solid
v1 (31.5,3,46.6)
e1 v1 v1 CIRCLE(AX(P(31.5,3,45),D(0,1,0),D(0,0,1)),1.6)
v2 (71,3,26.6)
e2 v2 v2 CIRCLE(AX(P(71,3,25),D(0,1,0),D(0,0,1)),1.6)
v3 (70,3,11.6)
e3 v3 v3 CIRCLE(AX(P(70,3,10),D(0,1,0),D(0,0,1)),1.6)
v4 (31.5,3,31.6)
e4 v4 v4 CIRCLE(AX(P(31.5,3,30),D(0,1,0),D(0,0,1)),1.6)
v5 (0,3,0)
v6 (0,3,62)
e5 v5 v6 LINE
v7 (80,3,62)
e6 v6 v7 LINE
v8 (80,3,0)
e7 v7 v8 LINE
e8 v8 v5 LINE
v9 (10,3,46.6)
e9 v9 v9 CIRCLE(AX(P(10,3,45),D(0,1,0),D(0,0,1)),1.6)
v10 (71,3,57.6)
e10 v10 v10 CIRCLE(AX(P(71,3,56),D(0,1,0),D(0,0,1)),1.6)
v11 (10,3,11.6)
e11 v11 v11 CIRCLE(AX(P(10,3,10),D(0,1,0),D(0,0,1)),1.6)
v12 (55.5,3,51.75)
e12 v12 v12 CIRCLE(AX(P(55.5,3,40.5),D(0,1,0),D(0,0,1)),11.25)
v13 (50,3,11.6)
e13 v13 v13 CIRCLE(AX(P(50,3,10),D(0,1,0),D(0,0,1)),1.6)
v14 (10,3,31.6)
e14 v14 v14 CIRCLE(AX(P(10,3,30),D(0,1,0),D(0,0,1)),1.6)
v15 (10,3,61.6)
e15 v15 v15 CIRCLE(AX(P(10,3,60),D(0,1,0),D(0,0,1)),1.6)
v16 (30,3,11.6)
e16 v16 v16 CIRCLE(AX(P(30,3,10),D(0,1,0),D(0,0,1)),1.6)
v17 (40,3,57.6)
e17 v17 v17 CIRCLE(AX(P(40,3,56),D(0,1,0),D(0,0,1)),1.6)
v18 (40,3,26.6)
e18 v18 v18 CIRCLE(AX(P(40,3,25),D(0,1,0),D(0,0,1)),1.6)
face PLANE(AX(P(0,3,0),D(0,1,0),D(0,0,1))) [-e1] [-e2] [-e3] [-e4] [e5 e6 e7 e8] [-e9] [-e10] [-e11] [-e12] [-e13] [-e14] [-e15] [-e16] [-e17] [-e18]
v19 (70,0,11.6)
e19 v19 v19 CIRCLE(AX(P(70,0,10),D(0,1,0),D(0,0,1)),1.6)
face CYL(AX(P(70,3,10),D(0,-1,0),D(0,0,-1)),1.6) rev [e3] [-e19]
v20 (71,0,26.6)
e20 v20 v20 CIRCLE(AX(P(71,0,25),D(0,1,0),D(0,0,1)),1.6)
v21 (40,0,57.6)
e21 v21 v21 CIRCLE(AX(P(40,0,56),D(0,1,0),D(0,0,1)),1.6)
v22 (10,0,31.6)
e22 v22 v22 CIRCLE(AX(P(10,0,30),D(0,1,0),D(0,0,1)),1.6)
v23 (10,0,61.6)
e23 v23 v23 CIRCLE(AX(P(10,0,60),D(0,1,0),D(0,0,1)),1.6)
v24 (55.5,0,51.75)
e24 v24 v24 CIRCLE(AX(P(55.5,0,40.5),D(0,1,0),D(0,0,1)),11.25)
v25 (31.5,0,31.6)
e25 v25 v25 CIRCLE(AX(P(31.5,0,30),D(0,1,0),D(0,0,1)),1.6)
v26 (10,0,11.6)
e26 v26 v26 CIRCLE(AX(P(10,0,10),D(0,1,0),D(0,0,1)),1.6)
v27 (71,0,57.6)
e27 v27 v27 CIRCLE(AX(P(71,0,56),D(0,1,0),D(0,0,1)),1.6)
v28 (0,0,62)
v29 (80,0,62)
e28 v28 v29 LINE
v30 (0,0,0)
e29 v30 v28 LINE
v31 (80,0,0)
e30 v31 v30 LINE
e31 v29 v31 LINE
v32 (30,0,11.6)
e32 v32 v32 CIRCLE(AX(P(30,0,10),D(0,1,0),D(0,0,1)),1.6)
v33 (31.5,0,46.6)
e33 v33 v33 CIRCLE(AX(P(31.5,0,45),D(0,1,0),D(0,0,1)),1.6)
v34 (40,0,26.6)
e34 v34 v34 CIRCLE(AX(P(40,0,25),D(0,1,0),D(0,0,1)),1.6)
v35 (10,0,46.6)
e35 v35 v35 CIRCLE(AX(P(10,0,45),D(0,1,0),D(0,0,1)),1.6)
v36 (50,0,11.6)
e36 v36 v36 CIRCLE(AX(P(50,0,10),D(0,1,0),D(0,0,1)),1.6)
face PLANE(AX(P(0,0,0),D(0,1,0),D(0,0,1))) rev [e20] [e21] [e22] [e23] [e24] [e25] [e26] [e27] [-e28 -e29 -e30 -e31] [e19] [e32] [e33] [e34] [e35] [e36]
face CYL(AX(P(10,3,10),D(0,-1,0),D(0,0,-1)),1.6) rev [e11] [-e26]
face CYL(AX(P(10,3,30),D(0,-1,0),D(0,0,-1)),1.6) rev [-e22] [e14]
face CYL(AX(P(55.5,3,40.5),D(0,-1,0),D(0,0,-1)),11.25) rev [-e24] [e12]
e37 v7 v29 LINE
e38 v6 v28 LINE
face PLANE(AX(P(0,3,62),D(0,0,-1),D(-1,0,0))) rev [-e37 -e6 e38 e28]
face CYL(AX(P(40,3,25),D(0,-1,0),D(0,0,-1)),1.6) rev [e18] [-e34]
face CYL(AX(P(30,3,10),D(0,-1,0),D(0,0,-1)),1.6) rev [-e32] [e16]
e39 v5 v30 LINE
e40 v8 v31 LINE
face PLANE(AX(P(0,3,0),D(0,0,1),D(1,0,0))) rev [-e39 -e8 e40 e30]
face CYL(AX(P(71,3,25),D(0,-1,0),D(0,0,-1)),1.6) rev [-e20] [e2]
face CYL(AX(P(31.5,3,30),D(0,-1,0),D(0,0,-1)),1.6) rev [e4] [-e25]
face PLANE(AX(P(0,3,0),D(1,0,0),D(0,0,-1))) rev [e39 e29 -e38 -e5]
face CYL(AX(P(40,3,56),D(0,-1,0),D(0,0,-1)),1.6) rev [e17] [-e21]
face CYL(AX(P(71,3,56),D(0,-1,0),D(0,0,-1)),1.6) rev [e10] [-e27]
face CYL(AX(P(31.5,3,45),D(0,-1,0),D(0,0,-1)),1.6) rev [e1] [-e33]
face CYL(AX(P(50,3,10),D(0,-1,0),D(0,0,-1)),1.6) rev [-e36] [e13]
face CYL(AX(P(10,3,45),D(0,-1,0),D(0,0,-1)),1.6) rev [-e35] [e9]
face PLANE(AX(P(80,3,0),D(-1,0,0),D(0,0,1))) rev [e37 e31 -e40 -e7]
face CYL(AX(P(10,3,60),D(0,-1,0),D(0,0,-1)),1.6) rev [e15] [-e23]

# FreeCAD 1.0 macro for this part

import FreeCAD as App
import Part
import Sketcher
from FreeCAD import Vector


def add_polygon(sketch, points):
    """Adds a closed chain of lines whose ends are joined by coincident constraints."""
    first, n = sketch.GeometryCount, len(points)
    for a, b in zip(points, points[1:] + points[:1]):
        sketch.addGeometry(Part.LineSegment(App.Vector(*a, 0), App.Vector(*b, 0)), False)
    for i in range(n):
        sketch.addConstraint(Sketcher.Constraint("Coincident", first + i, 2, first + (i + 1) % n, 1))

doc = App.newDocument("Part")
body = doc.addObject("PartDesign::Body", "Body")

# Sketch on XZ plane
sketch1 = doc.addObject("Sketcher::SketchObject", "Sketch")
body.addObject(sketch1)
sketch1.AttachmentSupport = (doc.XZ_Plane, [""])
sketch1.MapMode = "FlatFace"
add_polygon(sketch1, [(0, 0), (0, 62), (80, 62), (80, 0)])  # lines 0-3
sketch1.addGeometry(Part.Circle(Vector(10, 60, 0), Vector(0, 0, 1), 1.6), False)  # 4
sketch1.addGeometry(Part.Circle(Vector(40, 56, 0), Vector(0, 0, 1), 1.6), False)  # 5
sketch1.addGeometry(Part.Circle(Vector(10, 45, 0), Vector(0, 0, 1), 1.6), False)  # 6
sketch1.addGeometry(Part.Circle(Vector(31.5, 45, 0), Vector(0, 0, 1), 1.6), False)  # 7
sketch1.addGeometry(Part.Circle(Vector(71, 56, 0), Vector(0, 0, 1), 1.6), False)  # 8
sketch1.addGeometry(Part.Circle(Vector(55.5, 40.5, 0), Vector(0, 0, 1), 11.2), False)  # 9
sketch1.addGeometry(Part.Circle(Vector(10, 30, 0), Vector(0, 0, 1), 1.6), False)  # 10
sketch1.addGeometry(Part.Circle(Vector(31.5, 30, 0), Vector(0, 0, 1), 1.6), False)  # 11
sketch1.addGeometry(Part.Circle(Vector(40, 25, 0), Vector(0, 0, 1), 1.6), False)  # 12
sketch1.addGeometry(Part.Circle(Vector(10, 10, 0), Vector(0, 0, 1), 1.6), False)  # 13
sketch1.addGeometry(Part.Circle(Vector(30, 10, 0), Vector(0, 0, 1), 1.6), False)  # 14
sketch1.addGeometry(Part.Circle(Vector(71, 25, 0), Vector(0, 0, 1), 1.6), False)  # 15
sketch1.addGeometry(Part.Circle(Vector(50, 10, 0), Vector(0, 0, 1), 1.6), False)  # 16
sketch1.addGeometry(Part.Circle(Vector(70, 10, 0), Vector(0, 0, 1), 1.6), False)  # 17
sketch1.addConstraint([
    Sketcher.Constraint("Vertical", 0),
    Sketcher.Constraint("Horizontal", 1),
    Sketcher.Constraint("Vertical", 2),
    Sketcher.Constraint("Horizontal", 3),
    Sketcher.Constraint("Coincident", 3, 2, -1, 1),
    Sketcher.Constraint("Equal", 4, 5),
    Sketcher.Constraint("Equal", 5, 6),
    Sketcher.Constraint("Equal", 6, 7),
    Sketcher.Constraint("Equal", 7, 8),
    Sketcher.Constraint("Equal", 8, 10),
    Sketcher.Constraint("Equal", 10, 11),
    Sketcher.Constraint("Equal", 11, 12),
    Sketcher.Constraint("Equal", 12, 13),
    Sketcher.Constraint("Equal", 13, 14),
    Sketcher.Constraint("Equal", 14, 15),
    Sketcher.Constraint("Equal", 15, 16),
    Sketcher.Constraint("Equal", 16, 17),
    Sketcher.Constraint("Horizontal", 6, 3, 7, 3),
    Sketcher.Constraint("Horizontal", 5, 3, 8, 3),
    Sketcher.Constraint("Horizontal", 10, 3, 11, 3),
    Sketcher.Constraint("Horizontal", 13, 3, 14, 3),
    Sketcher.Constraint("Horizontal", 12, 3, 15, 3),
    Sketcher.Constraint("Horizontal", 14, 3, 16, 3),
    Sketcher.Constraint("Horizontal", 16, 3, 17, 3),
    Sketcher.Constraint("Vertical", 4, 3, 6, 3),
    Sketcher.Constraint("Vertical", 6, 3, 10, 3),
    Sketcher.Constraint("Vertical", 7, 3, 11, 3),
    Sketcher.Constraint("Vertical", 5, 3, 12, 3),
    Sketcher.Constraint("Vertical", 10, 3, 13, 3),
    Sketcher.Constraint("Vertical", 8, 3, 15, 3),
    Sketcher.Constraint("Diameter", 4, 3.2),
    Sketcher.Constraint("Diameter", 9, 22.5),
    Sketcher.Constraint("DistanceX", 1, 1, 1, 2, 80.0),
    Sketcher.Constraint("DistanceY", 0, 1, 0, 2, 62.0),
    Sketcher.Constraint("DistanceX", -1, 1, 4, 3, 10.0),
    Sketcher.Constraint("DistanceY", -1, 1, 4, 3, 60.0),
    Sketcher.Constraint("DistanceX", -1, 1, 5, 3, 40.0),
    Sketcher.Constraint("DistanceY", -1, 1, 5, 3, 56.0),
    Sketcher.Constraint("DistanceY", -1, 1, 6, 3, 45.0),
    Sketcher.Constraint("DistanceX", -1, 1, 8, 3, 71.0),
    Sketcher.Constraint("DistanceY", -1, 1, 10, 3, 30.0),
    Sketcher.Constraint("DistanceY", -1, 1, 12, 3, 25.0),
    Sketcher.Constraint("DistanceY", -1, 1, 13, 3, 10.0),
    Sketcher.Constraint("DistanceX", -1, 1, 14, 3, 30.0),
    Sketcher.Constraint("DistanceX", -1, 1, 16, 3, 50.0),
    Sketcher.Constraint("DistanceX", -1, 1, 17, 3, 70.0),
    Sketcher.Constraint("DistanceX", 7, 3, 9, 3, 24.0),
    Sketcher.Constraint("DistanceX", -1, 1, 7, 3, 31.5),
    Sketcher.Constraint("DistanceY", -1, 1, 9, 3, 40.5),
])
pad1 = doc.addObject("PartDesign::Pad", "Pad")
body.addObject(pad1)
pad1.Profile = sketch1
pad1.Length = 3
pad1.Reversed = True

doc.recompute()
